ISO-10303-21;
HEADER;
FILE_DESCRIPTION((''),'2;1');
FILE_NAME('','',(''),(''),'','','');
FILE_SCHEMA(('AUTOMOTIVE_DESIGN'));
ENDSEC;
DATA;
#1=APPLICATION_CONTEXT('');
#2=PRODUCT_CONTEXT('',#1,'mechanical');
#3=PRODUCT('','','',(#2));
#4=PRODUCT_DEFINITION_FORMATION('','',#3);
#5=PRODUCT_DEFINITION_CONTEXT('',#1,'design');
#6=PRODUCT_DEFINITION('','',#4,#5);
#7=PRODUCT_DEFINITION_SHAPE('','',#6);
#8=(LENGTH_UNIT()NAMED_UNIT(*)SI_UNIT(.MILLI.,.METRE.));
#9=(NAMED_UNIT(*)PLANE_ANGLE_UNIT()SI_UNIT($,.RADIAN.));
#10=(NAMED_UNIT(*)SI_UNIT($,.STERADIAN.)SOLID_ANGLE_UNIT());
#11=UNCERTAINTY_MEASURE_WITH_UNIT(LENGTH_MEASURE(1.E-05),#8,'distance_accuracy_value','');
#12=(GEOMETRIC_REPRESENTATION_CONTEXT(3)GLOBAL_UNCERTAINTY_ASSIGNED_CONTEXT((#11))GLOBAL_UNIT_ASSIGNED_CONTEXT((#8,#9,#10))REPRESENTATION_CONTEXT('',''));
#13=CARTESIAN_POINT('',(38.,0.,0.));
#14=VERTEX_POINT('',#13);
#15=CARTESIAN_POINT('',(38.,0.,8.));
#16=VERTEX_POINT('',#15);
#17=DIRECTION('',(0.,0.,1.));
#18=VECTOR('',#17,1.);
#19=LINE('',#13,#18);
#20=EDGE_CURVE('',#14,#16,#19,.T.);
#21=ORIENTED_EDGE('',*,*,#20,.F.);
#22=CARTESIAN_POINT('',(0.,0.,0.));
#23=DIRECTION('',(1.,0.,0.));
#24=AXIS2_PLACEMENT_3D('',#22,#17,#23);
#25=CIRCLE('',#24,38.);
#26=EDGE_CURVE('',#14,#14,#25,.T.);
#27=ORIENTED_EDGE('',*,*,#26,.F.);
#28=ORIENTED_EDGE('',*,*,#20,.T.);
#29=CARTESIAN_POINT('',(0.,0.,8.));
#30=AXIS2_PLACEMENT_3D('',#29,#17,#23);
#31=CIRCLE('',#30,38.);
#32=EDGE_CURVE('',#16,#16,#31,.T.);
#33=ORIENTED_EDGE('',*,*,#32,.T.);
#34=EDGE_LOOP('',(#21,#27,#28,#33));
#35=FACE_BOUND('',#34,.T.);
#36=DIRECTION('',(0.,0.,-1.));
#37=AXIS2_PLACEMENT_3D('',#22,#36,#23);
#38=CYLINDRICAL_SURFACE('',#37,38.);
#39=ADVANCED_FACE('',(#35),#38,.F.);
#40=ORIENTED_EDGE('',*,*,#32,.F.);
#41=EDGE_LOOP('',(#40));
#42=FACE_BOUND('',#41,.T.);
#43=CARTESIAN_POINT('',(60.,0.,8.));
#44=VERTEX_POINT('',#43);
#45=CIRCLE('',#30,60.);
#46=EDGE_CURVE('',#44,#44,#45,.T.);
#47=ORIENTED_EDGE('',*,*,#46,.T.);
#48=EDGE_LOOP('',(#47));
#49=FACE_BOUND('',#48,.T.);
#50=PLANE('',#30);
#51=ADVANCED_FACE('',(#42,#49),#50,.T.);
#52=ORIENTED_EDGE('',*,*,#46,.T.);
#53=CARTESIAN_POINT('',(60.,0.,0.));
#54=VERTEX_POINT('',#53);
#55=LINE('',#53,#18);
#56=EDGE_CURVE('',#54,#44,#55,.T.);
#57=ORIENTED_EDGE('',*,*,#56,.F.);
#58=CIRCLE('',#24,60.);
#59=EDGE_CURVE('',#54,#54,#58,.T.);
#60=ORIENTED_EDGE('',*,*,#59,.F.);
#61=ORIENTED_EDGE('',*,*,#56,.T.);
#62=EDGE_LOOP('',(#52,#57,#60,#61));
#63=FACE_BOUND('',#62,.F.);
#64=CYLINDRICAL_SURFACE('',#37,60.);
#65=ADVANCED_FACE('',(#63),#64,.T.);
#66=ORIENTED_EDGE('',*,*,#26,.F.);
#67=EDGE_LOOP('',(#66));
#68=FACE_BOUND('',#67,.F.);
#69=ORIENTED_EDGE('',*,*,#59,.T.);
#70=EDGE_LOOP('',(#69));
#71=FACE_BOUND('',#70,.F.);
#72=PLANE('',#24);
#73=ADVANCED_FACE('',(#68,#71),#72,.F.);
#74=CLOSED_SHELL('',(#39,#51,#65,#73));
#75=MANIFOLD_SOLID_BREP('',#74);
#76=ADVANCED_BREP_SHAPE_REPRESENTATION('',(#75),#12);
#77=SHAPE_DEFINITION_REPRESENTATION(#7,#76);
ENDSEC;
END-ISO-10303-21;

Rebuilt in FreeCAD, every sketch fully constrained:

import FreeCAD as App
import Part
import Sketcher
from FreeCAD import Vector
Q = App.Units.Quantity

doc = App.newDocument("Part")
params = doc.addObject("Spreadsheet::Sheet", "Params")
for row, (alias, value) in enumerate([
    ("sketch1_diameter", "120 mm"),
    ("sketch1_diameter2", "76 mm"),
    ("pad1_length", "8 mm"),
], start=1):
    params.set(f"A{row}", alias)
    params.set(f"B{row}", "=" + value)
    params.setAlias(f"B{row}", alias)

body = doc.addObject("PartDesign::Body", "Body")

sketch1 = body.newObject("Sketcher::SketchObject", "Sketch")
sketch1.AttachmentSupport = (doc.getObject("XY_Plane"), [""])
sketch1.MapMode = "FlatFace"
sketch1.addGeometry(Part.Circle(Vector(0, 0, 0), Vector(0, 0, 1), 60), False)
sketch1.addGeometry(Part.Circle(Vector(0, 0, 0), Vector(0, 0, 1), 38), False)
sketch1.addConstraint(Sketcher.Constraint("Coincident", 0, 3, -1, 1))
sketch1.addConstraint(Sketcher.Constraint("Coincident", 1, 3, -1, 1))
sketch1.addConstraint(Sketcher.Constraint("Diameter", 0, Q("120 mm")))
sketch1.addConstraint(Sketcher.Constraint("Diameter", 1, Q("76 mm")))
sketch1.setExpression("Constraints[2]", "Params.sketch1_diameter")
sketch1.setExpression("Constraints[3]", "Params.sketch1_diameter2")
pad1 = body.newObject("PartDesign::Pad", "Pad")
pad1.Profile = sketch1
pad1.setExpression("Length", "Params.pad1_length")

doc.recompute()
